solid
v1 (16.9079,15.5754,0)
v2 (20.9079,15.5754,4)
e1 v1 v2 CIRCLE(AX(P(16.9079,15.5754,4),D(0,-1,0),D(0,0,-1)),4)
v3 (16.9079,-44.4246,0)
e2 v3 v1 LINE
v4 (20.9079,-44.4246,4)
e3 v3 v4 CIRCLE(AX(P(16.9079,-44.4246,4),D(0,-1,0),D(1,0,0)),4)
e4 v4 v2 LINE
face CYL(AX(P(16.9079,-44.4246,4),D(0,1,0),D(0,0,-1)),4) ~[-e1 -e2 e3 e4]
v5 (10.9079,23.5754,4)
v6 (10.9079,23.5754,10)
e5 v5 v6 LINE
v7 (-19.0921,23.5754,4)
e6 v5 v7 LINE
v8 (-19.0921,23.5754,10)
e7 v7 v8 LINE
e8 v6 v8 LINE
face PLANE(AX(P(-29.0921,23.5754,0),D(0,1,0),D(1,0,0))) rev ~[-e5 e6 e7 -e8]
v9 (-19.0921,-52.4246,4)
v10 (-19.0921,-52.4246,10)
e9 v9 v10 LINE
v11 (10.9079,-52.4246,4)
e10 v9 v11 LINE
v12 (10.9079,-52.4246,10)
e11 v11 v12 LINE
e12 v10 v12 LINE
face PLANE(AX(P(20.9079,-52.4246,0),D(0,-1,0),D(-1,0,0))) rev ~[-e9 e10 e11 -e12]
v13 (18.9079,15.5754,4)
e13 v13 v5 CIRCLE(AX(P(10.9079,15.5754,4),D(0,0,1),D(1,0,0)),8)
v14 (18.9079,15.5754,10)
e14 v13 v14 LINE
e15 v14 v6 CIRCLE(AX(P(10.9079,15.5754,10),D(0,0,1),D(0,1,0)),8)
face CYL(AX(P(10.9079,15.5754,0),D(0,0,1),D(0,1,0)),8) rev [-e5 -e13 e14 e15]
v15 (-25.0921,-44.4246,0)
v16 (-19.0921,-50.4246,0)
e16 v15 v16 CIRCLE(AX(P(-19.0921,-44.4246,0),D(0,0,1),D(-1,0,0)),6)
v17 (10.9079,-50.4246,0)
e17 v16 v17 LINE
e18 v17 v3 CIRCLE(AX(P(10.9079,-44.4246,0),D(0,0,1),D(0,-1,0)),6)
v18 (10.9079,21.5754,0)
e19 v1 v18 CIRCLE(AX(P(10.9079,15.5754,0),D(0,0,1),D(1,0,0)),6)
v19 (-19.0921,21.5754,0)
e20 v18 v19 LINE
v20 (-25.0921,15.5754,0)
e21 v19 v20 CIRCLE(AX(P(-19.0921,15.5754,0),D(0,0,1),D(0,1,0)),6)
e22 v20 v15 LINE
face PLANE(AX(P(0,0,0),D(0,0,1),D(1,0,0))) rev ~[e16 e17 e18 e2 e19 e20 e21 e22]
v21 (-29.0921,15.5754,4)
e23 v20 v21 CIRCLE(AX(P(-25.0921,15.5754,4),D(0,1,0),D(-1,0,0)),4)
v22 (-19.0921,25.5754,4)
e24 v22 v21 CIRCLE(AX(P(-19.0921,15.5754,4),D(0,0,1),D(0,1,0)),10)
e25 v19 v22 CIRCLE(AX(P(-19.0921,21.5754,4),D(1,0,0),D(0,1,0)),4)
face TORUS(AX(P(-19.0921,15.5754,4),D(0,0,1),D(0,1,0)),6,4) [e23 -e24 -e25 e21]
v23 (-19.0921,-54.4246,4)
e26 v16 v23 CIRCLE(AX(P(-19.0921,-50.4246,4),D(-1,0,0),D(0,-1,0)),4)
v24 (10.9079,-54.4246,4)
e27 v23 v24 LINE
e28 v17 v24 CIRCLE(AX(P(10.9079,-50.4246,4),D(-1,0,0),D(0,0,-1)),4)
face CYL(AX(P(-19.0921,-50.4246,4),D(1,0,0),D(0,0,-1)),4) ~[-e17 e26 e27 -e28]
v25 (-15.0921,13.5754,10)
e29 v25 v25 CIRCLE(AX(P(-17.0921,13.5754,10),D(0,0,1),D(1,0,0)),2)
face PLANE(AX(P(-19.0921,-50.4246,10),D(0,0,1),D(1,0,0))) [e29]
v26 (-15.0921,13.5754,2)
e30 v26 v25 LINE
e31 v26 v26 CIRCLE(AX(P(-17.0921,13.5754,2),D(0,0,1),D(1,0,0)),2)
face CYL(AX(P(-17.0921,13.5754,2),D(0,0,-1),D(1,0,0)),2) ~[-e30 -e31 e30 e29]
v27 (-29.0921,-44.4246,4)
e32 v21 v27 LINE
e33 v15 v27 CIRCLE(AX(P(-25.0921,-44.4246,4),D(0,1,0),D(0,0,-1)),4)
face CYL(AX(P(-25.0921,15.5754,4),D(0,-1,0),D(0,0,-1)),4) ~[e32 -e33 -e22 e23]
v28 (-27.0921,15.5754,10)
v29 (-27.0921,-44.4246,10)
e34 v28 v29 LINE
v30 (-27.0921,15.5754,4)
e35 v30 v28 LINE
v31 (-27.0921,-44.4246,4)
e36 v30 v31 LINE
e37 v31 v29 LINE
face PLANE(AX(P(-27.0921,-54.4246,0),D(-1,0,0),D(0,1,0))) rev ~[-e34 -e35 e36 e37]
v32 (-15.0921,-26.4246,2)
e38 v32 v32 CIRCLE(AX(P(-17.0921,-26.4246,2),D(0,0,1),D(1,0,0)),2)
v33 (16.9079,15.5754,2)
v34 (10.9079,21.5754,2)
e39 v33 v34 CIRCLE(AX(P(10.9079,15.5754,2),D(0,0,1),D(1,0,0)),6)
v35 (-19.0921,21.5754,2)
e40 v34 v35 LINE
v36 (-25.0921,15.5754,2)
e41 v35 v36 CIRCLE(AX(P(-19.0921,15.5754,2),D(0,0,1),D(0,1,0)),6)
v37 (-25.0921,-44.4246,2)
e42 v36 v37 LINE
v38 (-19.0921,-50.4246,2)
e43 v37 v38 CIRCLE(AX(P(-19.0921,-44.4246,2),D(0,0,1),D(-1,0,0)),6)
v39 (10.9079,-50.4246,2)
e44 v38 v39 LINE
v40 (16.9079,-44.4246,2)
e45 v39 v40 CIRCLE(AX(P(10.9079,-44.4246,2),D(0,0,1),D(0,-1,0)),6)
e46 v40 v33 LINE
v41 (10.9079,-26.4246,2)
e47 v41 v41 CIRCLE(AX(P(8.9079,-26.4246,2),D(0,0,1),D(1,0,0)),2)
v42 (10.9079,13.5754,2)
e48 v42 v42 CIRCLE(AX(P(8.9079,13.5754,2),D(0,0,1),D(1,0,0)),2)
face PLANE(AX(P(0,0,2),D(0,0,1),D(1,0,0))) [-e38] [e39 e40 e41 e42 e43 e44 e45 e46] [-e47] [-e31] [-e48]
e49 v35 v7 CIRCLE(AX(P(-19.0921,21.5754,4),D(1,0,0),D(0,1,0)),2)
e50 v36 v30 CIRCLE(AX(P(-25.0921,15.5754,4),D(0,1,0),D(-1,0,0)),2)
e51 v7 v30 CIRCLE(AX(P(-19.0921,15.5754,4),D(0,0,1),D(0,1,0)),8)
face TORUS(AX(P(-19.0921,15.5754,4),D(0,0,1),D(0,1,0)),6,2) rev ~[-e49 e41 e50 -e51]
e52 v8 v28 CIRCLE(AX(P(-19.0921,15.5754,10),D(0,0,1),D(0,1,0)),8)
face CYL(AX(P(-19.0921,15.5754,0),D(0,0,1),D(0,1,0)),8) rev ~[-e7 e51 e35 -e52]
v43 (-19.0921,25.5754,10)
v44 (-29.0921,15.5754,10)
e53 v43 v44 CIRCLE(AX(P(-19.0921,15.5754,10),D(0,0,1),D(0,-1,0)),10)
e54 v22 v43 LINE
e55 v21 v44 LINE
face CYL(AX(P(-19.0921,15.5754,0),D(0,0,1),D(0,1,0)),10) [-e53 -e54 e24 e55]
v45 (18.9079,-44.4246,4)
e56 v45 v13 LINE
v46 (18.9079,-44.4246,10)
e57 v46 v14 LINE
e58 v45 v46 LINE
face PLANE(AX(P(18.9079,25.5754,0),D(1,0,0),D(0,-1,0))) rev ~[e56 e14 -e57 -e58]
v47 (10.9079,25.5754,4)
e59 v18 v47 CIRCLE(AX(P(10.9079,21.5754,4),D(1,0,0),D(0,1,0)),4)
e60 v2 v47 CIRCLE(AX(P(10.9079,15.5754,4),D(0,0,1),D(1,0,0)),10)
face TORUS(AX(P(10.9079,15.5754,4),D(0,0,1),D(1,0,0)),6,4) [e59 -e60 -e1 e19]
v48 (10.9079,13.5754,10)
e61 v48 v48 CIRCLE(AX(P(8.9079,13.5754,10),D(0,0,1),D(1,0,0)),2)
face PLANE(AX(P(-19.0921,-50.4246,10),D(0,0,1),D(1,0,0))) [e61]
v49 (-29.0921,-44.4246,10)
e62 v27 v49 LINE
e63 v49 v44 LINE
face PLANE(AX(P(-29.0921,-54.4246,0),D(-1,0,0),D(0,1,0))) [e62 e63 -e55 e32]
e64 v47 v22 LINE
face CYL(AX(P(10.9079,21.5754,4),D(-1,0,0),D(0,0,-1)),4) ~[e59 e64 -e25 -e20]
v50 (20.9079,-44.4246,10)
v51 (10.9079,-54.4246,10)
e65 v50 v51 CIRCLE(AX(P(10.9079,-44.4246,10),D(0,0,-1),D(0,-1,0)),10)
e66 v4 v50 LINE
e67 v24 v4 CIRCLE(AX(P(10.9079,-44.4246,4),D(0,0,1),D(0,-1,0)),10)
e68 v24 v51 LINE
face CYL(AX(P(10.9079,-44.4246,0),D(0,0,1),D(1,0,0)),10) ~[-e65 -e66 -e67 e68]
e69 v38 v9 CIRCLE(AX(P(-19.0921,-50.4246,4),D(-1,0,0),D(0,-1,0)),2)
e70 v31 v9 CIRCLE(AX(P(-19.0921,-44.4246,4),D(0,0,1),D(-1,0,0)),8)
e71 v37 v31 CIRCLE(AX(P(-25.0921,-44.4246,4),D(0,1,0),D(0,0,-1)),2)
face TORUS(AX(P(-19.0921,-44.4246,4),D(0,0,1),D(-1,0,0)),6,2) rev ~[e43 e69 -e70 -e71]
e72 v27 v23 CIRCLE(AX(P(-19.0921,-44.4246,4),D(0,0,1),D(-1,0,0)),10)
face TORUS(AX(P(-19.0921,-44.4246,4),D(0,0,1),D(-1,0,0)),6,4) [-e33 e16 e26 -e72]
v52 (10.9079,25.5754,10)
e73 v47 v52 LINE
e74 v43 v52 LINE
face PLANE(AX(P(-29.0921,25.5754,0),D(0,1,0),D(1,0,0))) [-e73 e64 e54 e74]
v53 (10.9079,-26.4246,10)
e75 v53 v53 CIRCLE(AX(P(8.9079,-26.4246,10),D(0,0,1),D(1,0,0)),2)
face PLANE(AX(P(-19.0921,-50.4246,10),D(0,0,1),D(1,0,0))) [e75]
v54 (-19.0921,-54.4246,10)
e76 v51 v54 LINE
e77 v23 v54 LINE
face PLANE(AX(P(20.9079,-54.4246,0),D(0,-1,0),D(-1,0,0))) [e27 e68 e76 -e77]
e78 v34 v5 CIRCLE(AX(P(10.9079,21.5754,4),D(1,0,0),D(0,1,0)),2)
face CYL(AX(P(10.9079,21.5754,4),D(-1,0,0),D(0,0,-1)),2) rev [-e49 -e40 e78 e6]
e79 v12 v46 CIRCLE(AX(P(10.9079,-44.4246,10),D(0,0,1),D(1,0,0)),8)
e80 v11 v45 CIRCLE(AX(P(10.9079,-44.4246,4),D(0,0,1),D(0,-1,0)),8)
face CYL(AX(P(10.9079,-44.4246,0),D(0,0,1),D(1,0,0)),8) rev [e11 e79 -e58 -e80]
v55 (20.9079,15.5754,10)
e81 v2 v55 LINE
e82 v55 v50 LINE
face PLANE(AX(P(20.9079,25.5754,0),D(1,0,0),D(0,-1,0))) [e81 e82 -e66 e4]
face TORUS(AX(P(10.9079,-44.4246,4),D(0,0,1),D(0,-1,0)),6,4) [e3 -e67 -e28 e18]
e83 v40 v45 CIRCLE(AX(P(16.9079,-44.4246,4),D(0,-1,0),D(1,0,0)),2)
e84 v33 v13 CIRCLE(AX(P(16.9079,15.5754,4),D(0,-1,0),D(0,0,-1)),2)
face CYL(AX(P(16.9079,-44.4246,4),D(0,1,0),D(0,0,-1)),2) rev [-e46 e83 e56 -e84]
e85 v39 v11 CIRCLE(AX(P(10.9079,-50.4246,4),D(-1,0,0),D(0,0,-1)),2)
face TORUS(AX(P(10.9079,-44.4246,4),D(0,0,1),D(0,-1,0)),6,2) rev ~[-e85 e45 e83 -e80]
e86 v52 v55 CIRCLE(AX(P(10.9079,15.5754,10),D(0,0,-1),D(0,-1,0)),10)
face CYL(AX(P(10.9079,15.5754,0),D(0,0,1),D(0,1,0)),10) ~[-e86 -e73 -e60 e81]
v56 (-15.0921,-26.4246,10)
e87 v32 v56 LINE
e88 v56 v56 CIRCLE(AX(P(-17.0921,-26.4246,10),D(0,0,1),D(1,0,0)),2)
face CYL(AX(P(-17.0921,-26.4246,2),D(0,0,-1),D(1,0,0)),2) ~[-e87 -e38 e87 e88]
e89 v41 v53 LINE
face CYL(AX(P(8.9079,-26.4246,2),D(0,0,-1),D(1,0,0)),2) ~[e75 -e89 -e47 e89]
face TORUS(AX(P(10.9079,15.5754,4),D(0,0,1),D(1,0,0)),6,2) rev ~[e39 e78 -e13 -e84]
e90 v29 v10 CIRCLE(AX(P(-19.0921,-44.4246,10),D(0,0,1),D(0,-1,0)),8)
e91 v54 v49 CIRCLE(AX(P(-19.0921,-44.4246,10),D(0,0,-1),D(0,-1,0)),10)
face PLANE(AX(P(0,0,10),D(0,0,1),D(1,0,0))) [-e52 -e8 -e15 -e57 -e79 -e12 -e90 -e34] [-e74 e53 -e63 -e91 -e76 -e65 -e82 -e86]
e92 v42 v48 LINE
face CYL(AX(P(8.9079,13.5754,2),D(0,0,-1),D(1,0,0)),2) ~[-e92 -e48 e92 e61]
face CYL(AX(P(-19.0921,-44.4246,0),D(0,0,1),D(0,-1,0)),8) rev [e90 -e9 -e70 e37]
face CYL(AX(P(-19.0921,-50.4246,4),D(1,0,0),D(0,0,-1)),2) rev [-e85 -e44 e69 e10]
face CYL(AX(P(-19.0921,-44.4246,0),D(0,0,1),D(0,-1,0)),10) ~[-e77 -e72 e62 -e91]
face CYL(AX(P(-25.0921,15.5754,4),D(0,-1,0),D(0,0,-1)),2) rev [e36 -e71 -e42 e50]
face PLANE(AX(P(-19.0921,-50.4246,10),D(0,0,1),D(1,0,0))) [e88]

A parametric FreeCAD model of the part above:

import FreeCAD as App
import Part
import Sketcher

V = App.Vector
Q = App.Units.Quantity


def edges_at(feature, points):
    """Names of the edges that pass closest to the given points."""
    edges = feature.Shape.Edges
    near = lambda p: min(range(len(edges)), key=lambda i: edges[i].distToShape(Part.Vertex(*p))[0])
    return sorted({f"Edge{near(p) + 1}" for p in points})


def faces_at(feature, points):
    """Names of the faces that lie closest to the given points."""
    faces = feature.Shape.Faces
    near = lambda p: min(range(len(faces)), key=lambda i: faces[i].distToShape(Part.Vertex(*p))[0])
    return sorted({f"Face{near(p) + 1}" for p in points})

doc = App.newDocument("Part")
params = doc.addObject("Spreadsheet::Sheet", "Params")
for row, (alias, value) in enumerate([
    ("sketch1_width", "50 mm"),
    ("sketch1_height", "80 mm"),
    ("pad1_length", "10 mm"),
    ("fillet_radius", "10 mm"),
    ("fillet2_radius", "4 mm"),
    ("thickness_wall", "2 mm"),
    ("sketch2_diameter", "4 mm"),
    ("pad2_length", "8 mm"),
], start=1):
    params.set(f"A{row}", alias)
    params.set(f"B{row}", "=" + value)
    params.setAlias(f"B{row}", alias)

body = doc.addObject("PartDesign::Body", "Body")

# Sketch on XY plane
sketch1 = body.newObject("Sketcher::SketchObject", "Sketch")
sketch1.AttachmentSupport = (doc.getObject("XY_Plane"), [""])
sketch1.MapMode = "FlatFace"
sketch1.addGeometry([
    Part.LineSegment(V(21, 26, 0), V(-29, 26, 0)),
    Part.LineSegment(V(-29, 26, 0), V(-29, -54, 0)),
    Part.LineSegment(V(-29, -54, 0), V(21, -54, 0)),
    Part.LineSegment(V(21, -54, 0), V(21, 26, 0)),
], False)
sketch1.addConstraint([
    Sketcher.Constraint("Coincident", 0, 2, 1, 1),
    Sketcher.Constraint("Coincident", 1, 2, 2, 1),
    Sketcher.Constraint("Coincident", 2, 2, 3, 1),
    Sketcher.Constraint("Coincident", 3, 2, 0, 1),
    Sketcher.Constraint("Horizontal", 0),
    Sketcher.Constraint("Vertical", 1),
    Sketcher.Constraint("Horizontal", 2),
    Sketcher.Constraint("Vertical", 3),
    Sketcher.Constraint("DistanceX", 0, 2, 0, 1, Q("50 mm")),
    Sketcher.Constraint("DistanceY", 1, 2, 1, 1, Q("80 mm")),
    Sketcher.Constraint("DistanceX", 0, 2, -1, 1, Q("29.092 mm")),
    Sketcher.Constraint("DistanceY", -1, 1, 0, 2, Q("25.5754 mm")),
])
sketch1.setExpression("Constraints[8]", "Params.sketch1_width")
sketch1.setExpression("Constraints[9]", "Params.sketch1_height")
pad1 = body.newObject("PartDesign::Pad", "Pad")
pad1.Profile = sketch1
pad1.setExpression("Length", "Params.pad1_length")
doc.recompute()

fillet = body.newObject("PartDesign::Fillet", "Fillet")
fillet.Base = (pad1, edges_at(pad1, [
    (-29.092, 25.575, 5),
    (20.908, 25.575, 5),
    (20.908, -54.425, 5),
    (-29.092, -54.425, 5),
]))
fillet.setExpression("Radius", "Params.fillet_radius")
doc.recompute()

fillet2 = body.newObject("PartDesign::Fillet", "Fillet001")
fillet2.Base = (fillet, edges_at(fillet, [
    (-26.163, 22.646, 0),
    (-29.092, -14.425, 0),
    (-26.163, -51.496, 0),
    (-4.092, -54.425, 0),
    (17.979, -51.496, 0),
    (20.908, -14.425, 0),
    (17.979, 22.646, 0),
    (-4.092, 25.575, 0),
]))
fillet2.setExpression("Radius", "Params.fillet2_radius")
doc.recompute()

thickness = body.newObject("PartDesign::Thickness", "Thickness")
thickness.Base = (fillet2, faces_at(fillet2, [(-12.425, -4.425, 10)]))
thickness.setExpression("Value", "Params.thickness_wall")
thickness.Reversed = True
thickness.Join = "Intersection"

# Sketch on XY plane
sketch2 = body.newObject("Sketcher::SketchObject", "Sketch001")
sketch2.AttachmentSupport = (doc.getObject("XY_Plane"), [""])
sketch2.MapMode = "FlatFace"
sketch2.AttachmentOffset = App.Placement(V(0, 0, 2), App.Rotation())
sketch2.addGeometry([
    Part.Circle(V(-17.1, 13.6, 0), V(0, 0, 1), 2),
    Part.Circle(V(8.9, 13.6, 0), V(0, 0, 1), 2),
    Part.Circle(V(-17.1, -26.4, 0), V(0, 0, 1), 2),
    Part.Circle(V(8.9, -26.4, 0), V(0, 0, 1), 2),
], False)
sketch2.addConstraint([
    Sketcher.Constraint("Equal", 0, 1),
    Sketcher.Constraint("Equal", 1, 2),
    Sketcher.Constraint("Equal", 2, 3),
    Sketcher.Constraint("Horizontal", 0, 3, 1, 3),
    Sketcher.Constraint("Horizontal", 2, 3, 3, 3),
    Sketcher.Constraint("Vertical", 0, 3, 2, 3),
    Sketcher.Constraint("Vertical", 1, 3, 3, 3),
    Sketcher.Constraint("Diameter", 0, Q("4 mm")),
    Sketcher.Constraint("DistanceX", 0, 3, 1, 3, Q("26 mm")),
    Sketcher.Constraint("DistanceY", 2, 3, 0, 3, Q("40 mm")),
    Sketcher.Constraint("DistanceX", 0, 3, -1, 1, Q("17.092 mm")),
    Sketcher.Constraint("DistanceY", -1, 1, 0, 3, Q("13.5754 mm")),
])
sketch2.setExpression("Constraints[7]", "Params.sketch2_diameter")
pad2 = body.newObject("PartDesign::Pad", "Pad001")
pad2.Profile = sketch2
pad2.setExpression("Length", "Params.pad2_length")

doc.recompute()
